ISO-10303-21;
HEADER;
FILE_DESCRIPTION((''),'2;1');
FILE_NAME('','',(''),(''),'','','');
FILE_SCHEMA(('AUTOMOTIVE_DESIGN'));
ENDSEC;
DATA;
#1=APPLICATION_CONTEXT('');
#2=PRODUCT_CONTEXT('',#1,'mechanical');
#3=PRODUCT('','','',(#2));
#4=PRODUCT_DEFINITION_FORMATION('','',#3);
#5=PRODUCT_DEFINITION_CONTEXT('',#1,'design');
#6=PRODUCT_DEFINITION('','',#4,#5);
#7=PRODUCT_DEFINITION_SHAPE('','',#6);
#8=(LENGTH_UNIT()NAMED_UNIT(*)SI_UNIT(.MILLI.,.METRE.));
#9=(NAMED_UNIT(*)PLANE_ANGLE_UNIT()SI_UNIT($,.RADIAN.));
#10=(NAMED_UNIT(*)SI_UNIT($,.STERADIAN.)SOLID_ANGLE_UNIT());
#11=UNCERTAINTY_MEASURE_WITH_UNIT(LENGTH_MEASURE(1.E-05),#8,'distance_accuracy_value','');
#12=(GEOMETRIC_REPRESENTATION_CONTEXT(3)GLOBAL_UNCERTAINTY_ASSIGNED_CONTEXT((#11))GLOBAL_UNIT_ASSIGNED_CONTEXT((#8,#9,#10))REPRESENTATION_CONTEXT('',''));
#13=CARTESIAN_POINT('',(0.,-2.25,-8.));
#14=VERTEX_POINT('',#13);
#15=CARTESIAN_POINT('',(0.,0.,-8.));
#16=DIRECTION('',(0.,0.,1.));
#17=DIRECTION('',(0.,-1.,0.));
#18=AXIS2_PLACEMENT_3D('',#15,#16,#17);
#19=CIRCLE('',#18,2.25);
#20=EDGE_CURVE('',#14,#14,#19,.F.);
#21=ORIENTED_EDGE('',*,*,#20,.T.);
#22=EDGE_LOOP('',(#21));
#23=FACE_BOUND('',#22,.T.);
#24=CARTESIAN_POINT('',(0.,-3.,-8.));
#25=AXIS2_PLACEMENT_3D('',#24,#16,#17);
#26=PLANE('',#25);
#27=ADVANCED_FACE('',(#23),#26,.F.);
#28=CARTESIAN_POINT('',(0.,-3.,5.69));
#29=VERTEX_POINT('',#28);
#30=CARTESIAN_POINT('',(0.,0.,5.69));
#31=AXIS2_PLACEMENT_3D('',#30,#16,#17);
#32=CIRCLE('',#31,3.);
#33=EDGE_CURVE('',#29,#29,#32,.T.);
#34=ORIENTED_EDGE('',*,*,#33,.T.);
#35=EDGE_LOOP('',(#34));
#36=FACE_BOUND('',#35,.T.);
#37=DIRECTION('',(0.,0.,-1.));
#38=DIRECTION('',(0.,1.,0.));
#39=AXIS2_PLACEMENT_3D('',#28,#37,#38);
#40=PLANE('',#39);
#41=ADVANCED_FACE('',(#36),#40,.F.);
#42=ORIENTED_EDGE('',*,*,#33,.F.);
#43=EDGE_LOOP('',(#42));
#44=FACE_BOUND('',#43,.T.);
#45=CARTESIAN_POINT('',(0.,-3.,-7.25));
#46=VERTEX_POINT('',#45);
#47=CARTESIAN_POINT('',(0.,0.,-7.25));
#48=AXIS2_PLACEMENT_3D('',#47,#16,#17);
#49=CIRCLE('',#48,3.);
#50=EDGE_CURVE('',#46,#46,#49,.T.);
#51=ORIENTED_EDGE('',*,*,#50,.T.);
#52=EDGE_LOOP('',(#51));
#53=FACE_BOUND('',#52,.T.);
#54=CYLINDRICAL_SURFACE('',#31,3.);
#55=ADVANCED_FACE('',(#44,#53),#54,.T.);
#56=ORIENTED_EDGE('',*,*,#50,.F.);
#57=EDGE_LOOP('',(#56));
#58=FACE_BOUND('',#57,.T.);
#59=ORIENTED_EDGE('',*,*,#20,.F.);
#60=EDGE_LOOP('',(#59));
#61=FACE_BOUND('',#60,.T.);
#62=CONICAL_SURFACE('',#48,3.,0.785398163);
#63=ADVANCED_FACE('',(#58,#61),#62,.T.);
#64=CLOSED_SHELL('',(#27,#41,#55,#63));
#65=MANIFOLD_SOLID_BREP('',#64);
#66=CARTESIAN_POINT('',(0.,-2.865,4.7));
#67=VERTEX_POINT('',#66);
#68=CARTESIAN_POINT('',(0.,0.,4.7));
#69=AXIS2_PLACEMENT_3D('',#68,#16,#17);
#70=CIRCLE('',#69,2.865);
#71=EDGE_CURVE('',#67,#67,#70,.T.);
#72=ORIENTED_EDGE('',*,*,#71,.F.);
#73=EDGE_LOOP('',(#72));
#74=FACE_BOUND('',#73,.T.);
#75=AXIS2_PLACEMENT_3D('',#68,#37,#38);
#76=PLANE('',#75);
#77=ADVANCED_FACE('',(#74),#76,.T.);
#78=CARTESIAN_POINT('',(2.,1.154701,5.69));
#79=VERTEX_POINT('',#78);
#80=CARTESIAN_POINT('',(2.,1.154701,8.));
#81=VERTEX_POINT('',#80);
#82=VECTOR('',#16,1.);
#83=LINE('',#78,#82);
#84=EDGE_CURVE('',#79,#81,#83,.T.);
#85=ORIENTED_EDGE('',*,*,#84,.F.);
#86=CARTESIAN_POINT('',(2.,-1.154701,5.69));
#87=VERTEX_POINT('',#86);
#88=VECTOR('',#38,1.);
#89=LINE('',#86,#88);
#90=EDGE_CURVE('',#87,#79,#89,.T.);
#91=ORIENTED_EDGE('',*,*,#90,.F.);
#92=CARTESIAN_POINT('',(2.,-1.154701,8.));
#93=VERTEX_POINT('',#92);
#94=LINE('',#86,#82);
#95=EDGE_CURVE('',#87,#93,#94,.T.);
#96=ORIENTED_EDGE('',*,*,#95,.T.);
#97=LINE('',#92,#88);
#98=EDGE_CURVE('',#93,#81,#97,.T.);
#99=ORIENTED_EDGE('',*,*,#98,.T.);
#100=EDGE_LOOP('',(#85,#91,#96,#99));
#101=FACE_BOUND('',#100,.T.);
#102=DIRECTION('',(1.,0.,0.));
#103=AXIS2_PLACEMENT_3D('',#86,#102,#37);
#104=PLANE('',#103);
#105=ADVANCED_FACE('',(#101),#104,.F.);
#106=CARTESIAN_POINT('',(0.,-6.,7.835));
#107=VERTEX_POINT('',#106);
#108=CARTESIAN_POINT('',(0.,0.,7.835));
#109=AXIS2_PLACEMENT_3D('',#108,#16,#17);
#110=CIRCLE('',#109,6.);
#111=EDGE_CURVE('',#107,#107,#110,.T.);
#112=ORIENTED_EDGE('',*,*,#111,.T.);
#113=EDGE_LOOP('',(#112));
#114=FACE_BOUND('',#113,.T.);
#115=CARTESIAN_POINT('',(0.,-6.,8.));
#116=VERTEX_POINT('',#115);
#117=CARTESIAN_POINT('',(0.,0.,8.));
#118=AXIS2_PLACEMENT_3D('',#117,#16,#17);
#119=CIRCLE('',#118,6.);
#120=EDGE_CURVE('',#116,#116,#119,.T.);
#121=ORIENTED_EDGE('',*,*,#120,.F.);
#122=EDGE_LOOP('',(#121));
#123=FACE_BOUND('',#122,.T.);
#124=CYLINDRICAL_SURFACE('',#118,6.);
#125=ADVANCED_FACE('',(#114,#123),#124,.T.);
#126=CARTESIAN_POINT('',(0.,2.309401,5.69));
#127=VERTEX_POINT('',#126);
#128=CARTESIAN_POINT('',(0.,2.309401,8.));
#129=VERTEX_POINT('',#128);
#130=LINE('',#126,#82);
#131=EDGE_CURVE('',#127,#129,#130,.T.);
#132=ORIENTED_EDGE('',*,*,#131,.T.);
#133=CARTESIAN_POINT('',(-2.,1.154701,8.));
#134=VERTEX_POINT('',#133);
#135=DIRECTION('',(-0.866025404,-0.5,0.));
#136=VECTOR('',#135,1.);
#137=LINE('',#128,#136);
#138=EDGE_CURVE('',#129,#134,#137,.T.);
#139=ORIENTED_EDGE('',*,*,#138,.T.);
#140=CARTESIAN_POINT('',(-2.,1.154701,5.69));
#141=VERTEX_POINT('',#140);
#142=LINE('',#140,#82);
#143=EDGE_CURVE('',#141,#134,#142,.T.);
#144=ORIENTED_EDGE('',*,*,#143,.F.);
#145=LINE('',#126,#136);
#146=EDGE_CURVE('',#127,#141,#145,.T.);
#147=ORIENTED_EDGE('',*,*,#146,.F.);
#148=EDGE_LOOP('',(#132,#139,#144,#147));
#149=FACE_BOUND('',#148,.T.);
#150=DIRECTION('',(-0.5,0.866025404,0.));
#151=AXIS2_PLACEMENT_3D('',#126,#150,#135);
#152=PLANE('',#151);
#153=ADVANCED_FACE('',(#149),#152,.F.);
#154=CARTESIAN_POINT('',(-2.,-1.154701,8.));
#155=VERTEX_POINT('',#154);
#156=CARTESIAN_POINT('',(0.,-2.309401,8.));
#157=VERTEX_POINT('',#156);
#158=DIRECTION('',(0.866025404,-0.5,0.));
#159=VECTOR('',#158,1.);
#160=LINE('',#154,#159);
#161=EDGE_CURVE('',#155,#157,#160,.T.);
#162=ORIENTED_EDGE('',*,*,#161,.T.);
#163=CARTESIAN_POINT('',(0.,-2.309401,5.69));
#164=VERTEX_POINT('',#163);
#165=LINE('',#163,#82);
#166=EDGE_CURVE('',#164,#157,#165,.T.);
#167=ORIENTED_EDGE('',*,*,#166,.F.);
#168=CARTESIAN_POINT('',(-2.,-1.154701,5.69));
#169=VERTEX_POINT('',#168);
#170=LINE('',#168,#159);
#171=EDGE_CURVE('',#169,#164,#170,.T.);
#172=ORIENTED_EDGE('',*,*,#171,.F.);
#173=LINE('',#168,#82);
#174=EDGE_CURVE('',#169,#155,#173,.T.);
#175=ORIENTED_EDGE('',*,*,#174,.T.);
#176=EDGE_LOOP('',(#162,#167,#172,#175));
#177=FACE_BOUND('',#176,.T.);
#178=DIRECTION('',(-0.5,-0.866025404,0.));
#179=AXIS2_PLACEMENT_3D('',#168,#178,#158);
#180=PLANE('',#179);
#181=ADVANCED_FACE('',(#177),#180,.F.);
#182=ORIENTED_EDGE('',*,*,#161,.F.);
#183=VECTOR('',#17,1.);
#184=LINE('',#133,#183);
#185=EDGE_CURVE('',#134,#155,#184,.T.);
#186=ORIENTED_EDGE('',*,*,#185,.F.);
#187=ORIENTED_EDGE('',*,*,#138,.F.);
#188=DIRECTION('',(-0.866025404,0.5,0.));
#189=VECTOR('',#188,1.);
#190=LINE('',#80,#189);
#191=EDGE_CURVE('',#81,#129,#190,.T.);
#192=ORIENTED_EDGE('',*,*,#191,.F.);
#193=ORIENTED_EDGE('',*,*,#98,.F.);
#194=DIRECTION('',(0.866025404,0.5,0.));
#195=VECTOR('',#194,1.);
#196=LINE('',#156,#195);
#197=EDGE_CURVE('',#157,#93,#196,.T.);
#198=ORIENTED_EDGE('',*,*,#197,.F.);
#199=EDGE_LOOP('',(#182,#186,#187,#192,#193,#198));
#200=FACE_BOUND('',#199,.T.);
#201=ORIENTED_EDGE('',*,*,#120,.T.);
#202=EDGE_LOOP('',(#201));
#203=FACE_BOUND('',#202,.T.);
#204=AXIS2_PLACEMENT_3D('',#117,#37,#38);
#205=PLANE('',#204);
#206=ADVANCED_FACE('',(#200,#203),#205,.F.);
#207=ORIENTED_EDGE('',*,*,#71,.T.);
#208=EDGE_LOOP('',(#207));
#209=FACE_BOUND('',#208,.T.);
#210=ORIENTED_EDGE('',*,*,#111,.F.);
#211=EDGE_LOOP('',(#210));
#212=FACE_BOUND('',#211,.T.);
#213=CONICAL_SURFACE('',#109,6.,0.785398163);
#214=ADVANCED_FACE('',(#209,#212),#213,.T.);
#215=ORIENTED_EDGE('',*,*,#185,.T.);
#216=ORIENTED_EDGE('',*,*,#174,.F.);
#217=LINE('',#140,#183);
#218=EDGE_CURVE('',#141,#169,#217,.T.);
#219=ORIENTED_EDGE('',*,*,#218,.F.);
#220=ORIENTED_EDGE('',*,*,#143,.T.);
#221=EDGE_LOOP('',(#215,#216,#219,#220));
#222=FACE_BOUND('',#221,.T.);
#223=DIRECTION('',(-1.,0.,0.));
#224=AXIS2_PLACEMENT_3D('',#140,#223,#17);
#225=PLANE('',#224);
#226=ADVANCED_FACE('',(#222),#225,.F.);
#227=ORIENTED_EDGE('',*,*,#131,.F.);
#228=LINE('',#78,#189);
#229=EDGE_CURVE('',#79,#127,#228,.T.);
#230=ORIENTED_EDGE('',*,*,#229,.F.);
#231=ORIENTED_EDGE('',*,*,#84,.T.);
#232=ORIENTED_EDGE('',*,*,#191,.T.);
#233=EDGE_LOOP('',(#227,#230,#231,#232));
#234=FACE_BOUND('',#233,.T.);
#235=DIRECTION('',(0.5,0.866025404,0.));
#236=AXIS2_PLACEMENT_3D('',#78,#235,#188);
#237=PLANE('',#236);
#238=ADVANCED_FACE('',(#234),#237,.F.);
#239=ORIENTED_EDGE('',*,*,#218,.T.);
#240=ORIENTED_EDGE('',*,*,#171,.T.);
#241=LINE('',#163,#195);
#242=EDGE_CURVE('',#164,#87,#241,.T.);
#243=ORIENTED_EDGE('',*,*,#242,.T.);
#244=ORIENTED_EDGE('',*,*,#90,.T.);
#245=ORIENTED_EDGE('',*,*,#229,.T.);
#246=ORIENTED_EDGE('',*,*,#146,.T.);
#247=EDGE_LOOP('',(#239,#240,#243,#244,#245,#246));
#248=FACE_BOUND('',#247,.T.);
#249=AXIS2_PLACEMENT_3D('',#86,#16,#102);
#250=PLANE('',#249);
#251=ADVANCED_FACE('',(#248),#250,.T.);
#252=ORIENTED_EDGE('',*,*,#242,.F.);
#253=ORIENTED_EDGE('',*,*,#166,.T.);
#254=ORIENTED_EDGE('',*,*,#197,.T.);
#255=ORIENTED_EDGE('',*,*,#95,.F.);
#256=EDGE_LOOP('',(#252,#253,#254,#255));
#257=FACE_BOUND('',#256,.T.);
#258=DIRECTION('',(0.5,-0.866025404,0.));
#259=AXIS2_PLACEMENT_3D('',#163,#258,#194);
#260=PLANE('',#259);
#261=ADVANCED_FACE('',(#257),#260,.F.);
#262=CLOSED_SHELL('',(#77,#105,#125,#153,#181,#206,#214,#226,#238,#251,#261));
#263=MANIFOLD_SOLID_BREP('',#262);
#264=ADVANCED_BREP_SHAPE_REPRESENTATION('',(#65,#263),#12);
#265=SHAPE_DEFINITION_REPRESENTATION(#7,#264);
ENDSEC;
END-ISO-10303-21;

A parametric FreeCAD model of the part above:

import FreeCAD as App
import Part
import Sketcher

V = App.Vector
Q = App.Units.Quantity


def edges_at(feature, points):
    """Names of the edges that pass closest to the given points."""
    edges = feature.Shape.Edges
    near = lambda p: min(range(len(edges)), key=lambda i: edges[i].distToShape(Part.Vertex(*p))[0])
    return sorted({f"Edge{near(p) + 1}" for p in points})


def add_polygon(sketch, points):
    """Adds a closed chain of lines whose ends are joined by coincident constraints."""
    first, n = sketch.GeometryCount, len(points)
    for a, b in zip(points, points[1:] + points[:1]):
        sketch.addGeometry(Part.LineSegment(App.Vector(*a, 0), App.Vector(*b, 0)), False)
    for i in range(n):
        sketch.addConstraint(Sketcher.Constraint("Coincident", first + i, 2, first + (i + 1) % n, 1))

doc = App.newDocument("Part")
body = doc.addObject("PartDesign::Body", "Body")

# Sketch on YZ plane
sketch1 = doc.addObject("Sketcher::SketchObject", "Sketch")
body.addObject(sketch1)
sketch1.AttachmentSupport = (doc.YZ_Plane, [""])
sketch1.MapMode = "FlatFace"
add_polygon(sketch1, [(3, -8), (3, 5.7), (0, 5.7), (0, -8)])  # lines 0-3
sketch1.addConstraint(Sketcher.Constraint("Vertical", 0))
sketch1.addConstraint(Sketcher.Constraint("Horizontal", 1))
sketch1.addConstraint(Sketcher.Constraint("Vertical", 2))
sketch1.addConstraint(Sketcher.Constraint("Horizontal", 3))
sketch1.addConstraint(Sketcher.Constraint("PointOnObject", 1, 2, -2))
sketch1.addConstraint(Sketcher.Constraint("DistanceX", 1, 2, 1, 1, Q("3 mm")))
sketch1.addConstraint(Sketcher.Constraint("DistanceY", 2, 2, -1, 1, Q("8 mm")))
sketch1.addConstraint(Sketcher.Constraint("DistanceY", 0, 1, 0, 2, Q("13.69 mm")))
revolution = doc.addObject("PartDesign::Revolution", "Revolution")
body.addObject(revolution)
revolution.Profile = sketch1
revolution.ReferenceAxis = (sketch1, ["V_Axis"])
revolution.Angle = 360
doc.recompute()

chamfer = doc.addObject("PartDesign::Chamfer", "Chamfer")
body.addObject(chamfer)
chamfer.Base = (revolution, edges_at(revolution, [(0, 3, -8)]))
chamfer.Size = 0.75
body2 = doc.addObject("PartDesign::Body", "Body001")

# Sketch on YZ plane
sketch2 = doc.addObject("Sketcher::SketchObject", "Sketch001")
body2.addObject(sketch2)
sketch2.AttachmentSupport = (doc.getObject("YZ_Plane001"), [""])
sketch2.MapMode = "FlatFace"
add_polygon(sketch2, [(6, 7.83), (6, 8), (0, 8), (0, 4.7), (2.87, 4.7)])  # lines 0-4
sketch2.addConstraint(Sketcher.Constraint("Vertical", 0))
sketch2.addConstraint(Sketcher.Constraint("Horizontal", 1))
sketch2.addConstraint(Sketcher.Constraint("Vertical", 2))
sketch2.addConstraint(Sketcher.Constraint("Horizontal", 3))
sketch2.addConstraint(Sketcher.Constraint("PointOnObject", 1, 2, -2))
sketch2.addConstraint(Sketcher.Constraint("DistanceX", 1, 2, 1, 1, Q("6 mm")))
sketch2.addConstraint(Sketcher.Constraint("Angle", 4, Q("45 deg")))
sketch2.addConstraint(Sketcher.Constraint("DistanceY", 2, 2, 2, 1, Q("3.3 mm")))
sketch2.addConstraint(Sketcher.Constraint("DistanceY", -1, 1, 0, 2, Q("8 mm")))
sketch2.addConstraint(Sketcher.Constraint("DistanceX", 3, 1, 3, 2, Q("2.865 mm")))
revolution2 = doc.addObject("PartDesign::Revolution", "Revolution001")
body2.addObject(revolution2)
revolution2.Profile = sketch2
revolution2.ReferenceAxis = (sketch2, ["V_Axis"])
revolution2.Angle = 360

# Sketch on XY plane
sketch3 = doc.addObject("Sketcher::SketchObject", "Sketch002")
body2.addObject(sketch3)
sketch3.AttachmentSupport = (doc.getObject("XY_Plane001"), [""])
sketch3.MapMode = "FlatFace"
sketch3.AttachmentOffset = App.Placement(V(0, 0, 8), App.Rotation())
add_polygon(sketch3, [(2, -1.2), (2, 1.2), (0, 2.3), (-2, 1.2), (-2, -1.2), (0, -2.3)])  # lines 0-5
sketch3.addConstraint(Sketcher.Constraint("Vertical", 0))
sketch3.addConstraint(Sketcher.Constraint("Vertical", 3))
sketch3.addConstraint(Sketcher.Constraint("Symmetric", 0, 2, 3, 2, -1, 1))
sketch3.addConstraint(Sketcher.Constraint("Symmetric", 1, 2, 4, 2, -1, 1))
sketch3.addConstraint(Sketcher.Constraint("PointOnObject", 1, 2, -2))
sketch3.addConstraint(Sketcher.Constraint("Parallel", 2, 5))
sketch3.addConstraint(Sketcher.Constraint("Horizontal", 0, 2, 2, 2))
sketch3.addConstraint(Sketcher.Constraint("Angle", 1, Q("150 deg")))
sketch3.addConstraint(Sketcher.Constraint("DistanceX", -1, 1, 0, 2, Q("2 mm")))
sketch3.addConstraint(Sketcher.Constraint("DistanceY", 0, 1, 0, 2, Q("2.309401 mm")))
pocket1 = doc.addObject("PartDesign::Pocket", "Pocket")
body2.addObject(pocket1)
pocket1.Profile = sketch3
pocket1.Length = 2.31

doc.recompute()
